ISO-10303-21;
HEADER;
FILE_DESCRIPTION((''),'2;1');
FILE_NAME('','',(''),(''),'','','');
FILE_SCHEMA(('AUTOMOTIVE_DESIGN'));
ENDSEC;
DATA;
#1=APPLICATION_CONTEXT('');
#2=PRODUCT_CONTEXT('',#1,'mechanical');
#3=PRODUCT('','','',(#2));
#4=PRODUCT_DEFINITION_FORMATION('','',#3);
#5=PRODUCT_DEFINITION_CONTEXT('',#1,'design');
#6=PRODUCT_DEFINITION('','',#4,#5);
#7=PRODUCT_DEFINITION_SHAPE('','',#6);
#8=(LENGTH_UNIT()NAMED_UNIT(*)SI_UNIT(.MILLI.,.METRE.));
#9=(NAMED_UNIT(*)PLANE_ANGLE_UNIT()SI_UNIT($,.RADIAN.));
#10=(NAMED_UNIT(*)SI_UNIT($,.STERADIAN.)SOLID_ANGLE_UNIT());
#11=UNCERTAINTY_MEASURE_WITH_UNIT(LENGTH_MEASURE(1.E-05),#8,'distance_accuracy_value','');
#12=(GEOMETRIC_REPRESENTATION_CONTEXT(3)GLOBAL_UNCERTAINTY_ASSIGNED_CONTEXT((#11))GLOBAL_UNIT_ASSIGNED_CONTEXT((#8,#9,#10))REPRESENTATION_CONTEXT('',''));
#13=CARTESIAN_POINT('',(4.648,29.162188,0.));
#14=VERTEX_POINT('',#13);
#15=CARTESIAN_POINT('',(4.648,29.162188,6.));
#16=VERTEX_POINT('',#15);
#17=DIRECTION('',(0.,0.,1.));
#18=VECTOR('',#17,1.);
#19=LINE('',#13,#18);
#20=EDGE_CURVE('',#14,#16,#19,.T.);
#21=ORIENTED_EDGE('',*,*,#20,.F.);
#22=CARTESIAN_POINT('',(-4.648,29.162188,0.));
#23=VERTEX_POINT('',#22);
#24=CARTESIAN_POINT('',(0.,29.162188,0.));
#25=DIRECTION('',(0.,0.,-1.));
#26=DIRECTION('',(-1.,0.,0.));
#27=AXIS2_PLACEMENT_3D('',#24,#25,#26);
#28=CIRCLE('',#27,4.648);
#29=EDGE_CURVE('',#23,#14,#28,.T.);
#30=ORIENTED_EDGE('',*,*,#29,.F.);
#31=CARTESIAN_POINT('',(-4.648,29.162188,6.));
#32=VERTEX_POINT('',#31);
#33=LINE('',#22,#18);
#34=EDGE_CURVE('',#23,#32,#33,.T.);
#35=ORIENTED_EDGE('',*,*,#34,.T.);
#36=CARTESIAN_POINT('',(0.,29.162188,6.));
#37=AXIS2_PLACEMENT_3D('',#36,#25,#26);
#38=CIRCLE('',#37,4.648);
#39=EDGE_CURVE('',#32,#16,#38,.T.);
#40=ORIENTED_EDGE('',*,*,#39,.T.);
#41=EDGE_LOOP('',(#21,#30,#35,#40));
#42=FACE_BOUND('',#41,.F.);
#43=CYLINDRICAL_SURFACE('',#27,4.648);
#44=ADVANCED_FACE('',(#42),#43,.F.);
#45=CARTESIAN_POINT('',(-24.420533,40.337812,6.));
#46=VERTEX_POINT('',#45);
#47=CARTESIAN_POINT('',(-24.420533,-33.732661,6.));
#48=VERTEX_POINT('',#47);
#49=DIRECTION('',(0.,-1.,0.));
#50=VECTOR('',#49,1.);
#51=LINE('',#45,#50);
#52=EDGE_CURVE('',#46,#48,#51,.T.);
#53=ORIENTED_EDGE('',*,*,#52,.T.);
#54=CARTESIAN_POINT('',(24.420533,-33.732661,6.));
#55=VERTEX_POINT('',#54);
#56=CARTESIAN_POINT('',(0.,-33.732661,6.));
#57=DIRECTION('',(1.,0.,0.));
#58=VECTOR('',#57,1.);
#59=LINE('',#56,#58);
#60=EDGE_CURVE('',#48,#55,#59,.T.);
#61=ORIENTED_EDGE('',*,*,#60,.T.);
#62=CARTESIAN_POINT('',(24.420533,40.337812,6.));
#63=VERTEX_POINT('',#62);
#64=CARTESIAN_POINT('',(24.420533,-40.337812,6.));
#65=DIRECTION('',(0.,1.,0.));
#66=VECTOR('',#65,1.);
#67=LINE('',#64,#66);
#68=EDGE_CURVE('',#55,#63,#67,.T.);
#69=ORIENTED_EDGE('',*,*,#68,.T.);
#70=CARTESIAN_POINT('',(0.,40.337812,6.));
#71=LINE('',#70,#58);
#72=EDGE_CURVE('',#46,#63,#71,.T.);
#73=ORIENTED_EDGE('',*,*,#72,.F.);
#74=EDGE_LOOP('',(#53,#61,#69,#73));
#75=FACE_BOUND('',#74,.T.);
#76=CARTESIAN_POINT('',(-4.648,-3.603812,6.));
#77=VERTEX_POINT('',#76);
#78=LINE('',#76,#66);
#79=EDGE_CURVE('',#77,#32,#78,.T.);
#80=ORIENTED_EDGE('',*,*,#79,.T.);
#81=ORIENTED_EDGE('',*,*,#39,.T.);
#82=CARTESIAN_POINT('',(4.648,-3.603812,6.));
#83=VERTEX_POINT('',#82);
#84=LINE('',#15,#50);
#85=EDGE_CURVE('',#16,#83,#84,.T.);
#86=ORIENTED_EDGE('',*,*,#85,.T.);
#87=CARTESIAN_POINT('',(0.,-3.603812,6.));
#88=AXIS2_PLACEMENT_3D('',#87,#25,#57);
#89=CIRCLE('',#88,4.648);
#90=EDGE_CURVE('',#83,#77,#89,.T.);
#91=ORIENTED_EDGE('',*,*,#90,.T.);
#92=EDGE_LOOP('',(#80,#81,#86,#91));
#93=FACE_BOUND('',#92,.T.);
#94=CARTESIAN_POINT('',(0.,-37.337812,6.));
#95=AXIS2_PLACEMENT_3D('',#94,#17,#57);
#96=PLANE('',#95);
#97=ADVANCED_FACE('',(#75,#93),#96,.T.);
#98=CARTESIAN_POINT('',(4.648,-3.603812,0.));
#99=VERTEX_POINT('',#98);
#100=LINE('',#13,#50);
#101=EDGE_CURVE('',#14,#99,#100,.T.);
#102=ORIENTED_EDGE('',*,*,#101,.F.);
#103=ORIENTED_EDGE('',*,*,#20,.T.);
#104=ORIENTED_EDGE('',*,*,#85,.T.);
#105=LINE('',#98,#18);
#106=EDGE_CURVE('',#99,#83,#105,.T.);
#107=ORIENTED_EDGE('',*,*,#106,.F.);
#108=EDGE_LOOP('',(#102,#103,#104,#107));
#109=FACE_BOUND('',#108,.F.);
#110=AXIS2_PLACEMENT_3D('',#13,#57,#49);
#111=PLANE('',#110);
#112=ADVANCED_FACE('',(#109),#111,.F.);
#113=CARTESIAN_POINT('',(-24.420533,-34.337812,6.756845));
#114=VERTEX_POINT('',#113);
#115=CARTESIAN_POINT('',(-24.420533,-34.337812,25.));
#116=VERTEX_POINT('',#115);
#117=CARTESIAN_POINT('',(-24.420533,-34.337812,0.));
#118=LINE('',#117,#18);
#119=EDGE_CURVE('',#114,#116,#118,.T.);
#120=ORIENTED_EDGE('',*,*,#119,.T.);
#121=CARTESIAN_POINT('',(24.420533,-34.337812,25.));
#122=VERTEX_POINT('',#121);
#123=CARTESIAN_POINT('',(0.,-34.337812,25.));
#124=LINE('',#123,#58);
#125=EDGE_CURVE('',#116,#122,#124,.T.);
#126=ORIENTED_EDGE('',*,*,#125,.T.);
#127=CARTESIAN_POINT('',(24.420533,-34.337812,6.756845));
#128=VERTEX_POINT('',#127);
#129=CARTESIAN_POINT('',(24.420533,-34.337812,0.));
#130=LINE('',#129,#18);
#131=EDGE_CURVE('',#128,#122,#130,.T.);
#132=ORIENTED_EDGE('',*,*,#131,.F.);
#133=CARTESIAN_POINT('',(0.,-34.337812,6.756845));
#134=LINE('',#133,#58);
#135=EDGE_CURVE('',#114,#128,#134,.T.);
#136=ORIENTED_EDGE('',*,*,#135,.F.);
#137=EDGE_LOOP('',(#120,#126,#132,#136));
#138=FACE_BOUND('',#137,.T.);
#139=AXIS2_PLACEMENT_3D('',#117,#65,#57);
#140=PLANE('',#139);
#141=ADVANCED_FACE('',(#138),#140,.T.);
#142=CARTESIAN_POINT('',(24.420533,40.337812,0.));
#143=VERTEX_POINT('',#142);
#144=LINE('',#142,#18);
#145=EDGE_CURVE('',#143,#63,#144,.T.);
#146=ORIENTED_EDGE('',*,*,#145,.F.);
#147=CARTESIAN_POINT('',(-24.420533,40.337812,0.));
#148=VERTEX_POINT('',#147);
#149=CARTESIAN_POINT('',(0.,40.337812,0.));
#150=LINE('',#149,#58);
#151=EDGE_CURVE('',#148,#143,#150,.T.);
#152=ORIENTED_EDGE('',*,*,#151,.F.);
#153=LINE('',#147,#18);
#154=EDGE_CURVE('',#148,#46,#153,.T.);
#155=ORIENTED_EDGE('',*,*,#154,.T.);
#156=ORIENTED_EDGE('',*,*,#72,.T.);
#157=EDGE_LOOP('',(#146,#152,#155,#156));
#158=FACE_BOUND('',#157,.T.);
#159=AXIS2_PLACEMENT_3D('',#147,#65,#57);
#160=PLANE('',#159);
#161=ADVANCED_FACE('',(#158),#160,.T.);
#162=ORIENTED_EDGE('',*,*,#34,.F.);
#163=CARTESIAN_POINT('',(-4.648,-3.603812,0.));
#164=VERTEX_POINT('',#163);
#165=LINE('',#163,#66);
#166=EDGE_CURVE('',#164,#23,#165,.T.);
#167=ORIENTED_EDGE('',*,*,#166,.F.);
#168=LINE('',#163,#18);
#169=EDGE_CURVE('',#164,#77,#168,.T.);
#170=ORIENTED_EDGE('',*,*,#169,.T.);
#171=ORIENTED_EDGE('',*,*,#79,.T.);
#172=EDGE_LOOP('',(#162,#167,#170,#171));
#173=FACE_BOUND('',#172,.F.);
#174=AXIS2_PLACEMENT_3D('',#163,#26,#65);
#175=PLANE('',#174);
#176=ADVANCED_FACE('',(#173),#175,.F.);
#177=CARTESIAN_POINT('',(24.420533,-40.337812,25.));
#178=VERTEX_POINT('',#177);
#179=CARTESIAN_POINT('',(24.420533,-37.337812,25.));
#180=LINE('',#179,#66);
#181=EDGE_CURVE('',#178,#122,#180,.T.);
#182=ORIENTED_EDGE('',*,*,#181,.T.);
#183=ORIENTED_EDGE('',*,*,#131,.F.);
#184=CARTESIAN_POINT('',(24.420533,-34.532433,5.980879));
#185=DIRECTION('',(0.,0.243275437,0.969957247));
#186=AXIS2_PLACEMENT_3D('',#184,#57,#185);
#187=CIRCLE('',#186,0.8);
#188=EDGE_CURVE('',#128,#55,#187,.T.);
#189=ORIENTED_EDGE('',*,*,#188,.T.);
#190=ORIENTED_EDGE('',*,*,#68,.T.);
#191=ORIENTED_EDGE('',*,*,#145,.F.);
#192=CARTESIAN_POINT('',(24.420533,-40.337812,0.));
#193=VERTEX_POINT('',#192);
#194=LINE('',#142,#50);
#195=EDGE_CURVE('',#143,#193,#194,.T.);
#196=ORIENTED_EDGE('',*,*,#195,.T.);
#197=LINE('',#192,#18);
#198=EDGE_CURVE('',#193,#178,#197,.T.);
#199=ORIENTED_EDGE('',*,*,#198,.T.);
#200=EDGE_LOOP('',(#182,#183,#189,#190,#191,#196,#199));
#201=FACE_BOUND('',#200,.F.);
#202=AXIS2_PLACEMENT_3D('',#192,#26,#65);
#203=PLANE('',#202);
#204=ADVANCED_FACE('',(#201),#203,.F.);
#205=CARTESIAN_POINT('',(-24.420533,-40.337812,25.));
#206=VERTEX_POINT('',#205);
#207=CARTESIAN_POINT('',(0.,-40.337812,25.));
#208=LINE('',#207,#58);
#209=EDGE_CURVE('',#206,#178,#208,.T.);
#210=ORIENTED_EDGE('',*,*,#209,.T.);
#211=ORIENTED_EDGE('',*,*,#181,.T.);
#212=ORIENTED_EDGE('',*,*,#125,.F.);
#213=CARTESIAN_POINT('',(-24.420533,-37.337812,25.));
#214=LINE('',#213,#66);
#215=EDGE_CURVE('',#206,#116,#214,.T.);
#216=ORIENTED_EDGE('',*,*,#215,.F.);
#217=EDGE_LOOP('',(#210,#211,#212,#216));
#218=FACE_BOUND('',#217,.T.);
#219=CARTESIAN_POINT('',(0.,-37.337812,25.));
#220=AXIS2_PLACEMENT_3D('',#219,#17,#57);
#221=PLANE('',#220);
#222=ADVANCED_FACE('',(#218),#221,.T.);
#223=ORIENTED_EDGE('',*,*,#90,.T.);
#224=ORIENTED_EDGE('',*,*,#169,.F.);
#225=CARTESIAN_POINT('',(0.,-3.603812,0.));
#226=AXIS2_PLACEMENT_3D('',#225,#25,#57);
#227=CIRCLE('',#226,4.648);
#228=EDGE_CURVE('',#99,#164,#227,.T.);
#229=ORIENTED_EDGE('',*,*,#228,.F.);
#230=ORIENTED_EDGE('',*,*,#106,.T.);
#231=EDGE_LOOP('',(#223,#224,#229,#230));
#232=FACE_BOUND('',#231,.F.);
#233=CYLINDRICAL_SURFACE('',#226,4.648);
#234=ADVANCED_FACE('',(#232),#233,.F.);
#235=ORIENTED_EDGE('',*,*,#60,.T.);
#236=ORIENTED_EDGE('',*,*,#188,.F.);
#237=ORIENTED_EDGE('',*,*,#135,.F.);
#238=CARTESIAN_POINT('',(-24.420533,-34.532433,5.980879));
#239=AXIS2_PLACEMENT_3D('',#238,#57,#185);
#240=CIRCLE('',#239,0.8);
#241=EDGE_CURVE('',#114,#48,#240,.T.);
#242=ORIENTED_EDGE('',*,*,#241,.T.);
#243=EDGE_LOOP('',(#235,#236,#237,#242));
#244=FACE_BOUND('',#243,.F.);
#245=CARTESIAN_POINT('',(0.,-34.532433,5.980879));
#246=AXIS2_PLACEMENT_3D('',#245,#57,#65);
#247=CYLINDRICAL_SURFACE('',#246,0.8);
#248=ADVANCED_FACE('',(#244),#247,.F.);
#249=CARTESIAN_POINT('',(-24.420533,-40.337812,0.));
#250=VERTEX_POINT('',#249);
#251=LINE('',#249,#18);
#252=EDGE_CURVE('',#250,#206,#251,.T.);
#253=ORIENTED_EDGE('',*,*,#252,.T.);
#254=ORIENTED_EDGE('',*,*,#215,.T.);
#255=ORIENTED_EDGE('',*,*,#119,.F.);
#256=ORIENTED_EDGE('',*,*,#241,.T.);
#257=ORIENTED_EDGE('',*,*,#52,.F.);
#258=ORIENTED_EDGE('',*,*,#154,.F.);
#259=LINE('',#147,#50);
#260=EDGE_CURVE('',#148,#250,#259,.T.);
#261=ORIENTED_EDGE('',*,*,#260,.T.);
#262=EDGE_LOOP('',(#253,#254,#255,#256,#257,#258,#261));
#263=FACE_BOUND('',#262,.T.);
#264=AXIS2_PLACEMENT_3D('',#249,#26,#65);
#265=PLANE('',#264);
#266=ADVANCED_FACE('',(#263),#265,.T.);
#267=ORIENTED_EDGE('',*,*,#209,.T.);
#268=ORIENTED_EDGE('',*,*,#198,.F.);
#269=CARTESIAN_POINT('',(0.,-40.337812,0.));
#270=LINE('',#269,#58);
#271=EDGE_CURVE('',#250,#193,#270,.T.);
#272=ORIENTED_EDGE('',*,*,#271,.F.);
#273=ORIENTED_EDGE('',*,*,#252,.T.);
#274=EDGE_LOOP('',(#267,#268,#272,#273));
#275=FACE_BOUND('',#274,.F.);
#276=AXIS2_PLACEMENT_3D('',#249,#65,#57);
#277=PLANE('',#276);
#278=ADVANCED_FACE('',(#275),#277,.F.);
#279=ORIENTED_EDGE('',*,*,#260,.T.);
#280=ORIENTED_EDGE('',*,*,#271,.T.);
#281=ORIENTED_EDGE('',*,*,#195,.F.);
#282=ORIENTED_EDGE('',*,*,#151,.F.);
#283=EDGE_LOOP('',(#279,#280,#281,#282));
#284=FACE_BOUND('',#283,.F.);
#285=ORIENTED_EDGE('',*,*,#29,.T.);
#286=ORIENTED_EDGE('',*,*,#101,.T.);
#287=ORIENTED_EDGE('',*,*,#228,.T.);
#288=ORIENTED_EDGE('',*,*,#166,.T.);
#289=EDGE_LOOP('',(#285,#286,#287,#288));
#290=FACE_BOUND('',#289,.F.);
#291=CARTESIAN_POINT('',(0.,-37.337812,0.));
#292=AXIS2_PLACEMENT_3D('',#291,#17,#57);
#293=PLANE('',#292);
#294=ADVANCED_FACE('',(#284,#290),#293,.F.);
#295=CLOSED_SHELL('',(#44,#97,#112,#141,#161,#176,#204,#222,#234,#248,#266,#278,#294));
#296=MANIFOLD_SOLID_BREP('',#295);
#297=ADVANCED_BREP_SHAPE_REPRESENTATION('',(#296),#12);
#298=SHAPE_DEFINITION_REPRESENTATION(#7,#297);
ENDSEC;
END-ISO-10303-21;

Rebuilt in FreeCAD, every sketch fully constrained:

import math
import FreeCAD as App
import Part
import Sketcher
from FreeCAD import Vector


def add_polygon(sketch, points):
    """Adds a closed chain of lines whose ends are joined by coincident constraints."""
    first, n = sketch.GeometryCount, len(points)
    for a, b in zip(points, points[1:] + points[:1]):
        sketch.addGeometry(Part.LineSegment(App.Vector(*a, 0), App.Vector(*b, 0)), False)
    for i in range(n):
        sketch.addConstraint(Sketcher.Constraint("Coincident", first + i, 2, first + (i + 1) % n, 1))

doc = App.newDocument("Part")
body = doc.addObject("PartDesign::Body", "Body")

sketch1 = doc.addObject("Sketcher::SketchObject", "Sketch")
body.addObject(sketch1)
sketch1.AttachmentSupport = (doc.XY_Plane, [""])
sketch1.MapMode = "FlatFace"
add_polygon(sketch1, [(-24, -34), (-24, -40), (24, -40), (24, -34)])
sketch1.addConstraint(Sketcher.Constraint("Vertical", 0))
sketch1.addConstraint(Sketcher.Constraint("Horizontal", 1))
sketch1.addConstraint(Sketcher.Constraint("Vertical", 2))
sketch1.addConstraint(Sketcher.Constraint("Horizontal", 3))
sketch1.addConstraint(Sketcher.Constraint("DistanceY", 0, 2, 0, 1, 6.0))
sketch1.addConstraint(Sketcher.Constraint("DistanceX", 1, 1, 1, 2, 48.841067))
sketch1.addConstraint(Sketcher.Constraint("DistanceX", 0, 2, -1, 1, 24.420533))
sketch1.addConstraint(Sketcher.Constraint("DistanceY", 0, 2, -1, 1, 40.337812))
pad1 = doc.addObject("PartDesign::Pad", "Pad")
body.addObject(pad1)
pad1.Profile = sketch1
pad1.Length = 25

sketch2 = doc.addObject("Sketcher::SketchObject", "Sketch001")
body.addObject(sketch2)
sketch2.AttachmentSupport = (doc.XY_Plane, [""])
sketch2.MapMode = "FlatFace"
add_polygon(sketch2, [(-24.4, -40.3), (24.4, -40.3), (24.4, 40.3), (-24.4, 40.3)])
sketch2.addGeometry(Part.ArcOfCircle(Part.Circle(Vector(0, 29.2, 0), Vector(0, 0, 1), 4.6), math.radians(0), math.radians(180)), False)
sketch2.addGeometry(Part.LineSegment(Vector(4.6, 29.2, 0), Vector(4.6, -3.6, 0)), False)
sketch2.addGeometry(Part.ArcOfCircle(Part.Circle(Vector(0, -3.6, 0), Vector(0, 0, 1), 4.6), math.radians(180), math.radians(360)), False)
sketch2.addGeometry(Part.LineSegment(Vector(-4.6, -3.6, 0), Vector(-4.6, 29.2, 0)), False)
sketch2.addConstraint(Sketcher.Constraint("Tangent", 4, 1, 5, 1))
sketch2.addConstraint(Sketcher.Constraint("Tangent", 5, 2, 6, 2))
sketch2.addConstraint(Sketcher.Constraint("Tangent", 6, 1, 7, 1))
sketch2.addConstraint(Sketcher.Constraint("Tangent", 7, 2, 4, 2))
sketch2.addConstraint(Sketcher.Constraint("Horizontal", 0))
sketch2.addConstraint(Sketcher.Constraint("Vertical", 1))
sketch2.addConstraint(Sketcher.Constraint("Horizontal", 2))
sketch2.addConstraint(Sketcher.Constraint("Vertical", 3))
sketch2.addConstraint(Sketcher.Constraint("Vertical", 5))
sketch2.addConstraint(Sketcher.Constraint("Vertical", 7))
sketch2.addConstraint(Sketcher.Constraint("Symmetric", 0, 2, 2, 2, -1, 1))
sketch2.addConstraint(Sketcher.Constraint("PointOnObject", 4, 3, -2))
sketch2.addConstraint(Sketcher.Constraint("Radius", 4, 4.648))
sketch2.addConstraint(Sketcher.Constraint("DistanceY", 0, 2, 4, 3, 69.5))
sketch2.addConstraint(Sketcher.Constraint("DistanceY", 5, 2, 5, 1, 32.766))
sketch2.addConstraint(Sketcher.Constraint("DistanceX", 0, 1, 0, 2, 48.841067))
sketch2.addConstraint(Sketcher.Constraint("DistanceY", 1, 1, 1, 2, 80.675624))
pad2 = doc.addObject("PartDesign::Pad", "Pad001")
body.addObject(pad2)
pad2.Profile = sketch2
pad2.Length = 6

sketch3 = doc.addObject("Sketcher::SketchObject", "Sketch002")
body.addObject(sketch3)
sketch3.AttachmentSupport = (doc.YZ_Plane, [""])
sketch3.MapMode = "FlatFace"
sketch3.addGeometry(Part.Circle(Vector(-34.5, 6, 0), Vector(0, 0, 1), 0.8), False)
sketch3.addConstraint(Sketcher.Constraint("Diameter", 0, 1.6))
sketch3.addConstraint(Sketcher.Constraint("DistanceY", -1, 1, 0, 3, 5.980879))
sketch3.addConstraint(Sketcher.Constraint("DistanceX", 0, 3, -1, 1, 34.532433))
pocket1 = doc.addObject("PartDesign::Pocket", "Pocket")
body.addObject(pocket1)
pocket1.Profile = sketch3
pocket1.Length = 50.5
pocket1.Midplane = True

doc.recompute()
